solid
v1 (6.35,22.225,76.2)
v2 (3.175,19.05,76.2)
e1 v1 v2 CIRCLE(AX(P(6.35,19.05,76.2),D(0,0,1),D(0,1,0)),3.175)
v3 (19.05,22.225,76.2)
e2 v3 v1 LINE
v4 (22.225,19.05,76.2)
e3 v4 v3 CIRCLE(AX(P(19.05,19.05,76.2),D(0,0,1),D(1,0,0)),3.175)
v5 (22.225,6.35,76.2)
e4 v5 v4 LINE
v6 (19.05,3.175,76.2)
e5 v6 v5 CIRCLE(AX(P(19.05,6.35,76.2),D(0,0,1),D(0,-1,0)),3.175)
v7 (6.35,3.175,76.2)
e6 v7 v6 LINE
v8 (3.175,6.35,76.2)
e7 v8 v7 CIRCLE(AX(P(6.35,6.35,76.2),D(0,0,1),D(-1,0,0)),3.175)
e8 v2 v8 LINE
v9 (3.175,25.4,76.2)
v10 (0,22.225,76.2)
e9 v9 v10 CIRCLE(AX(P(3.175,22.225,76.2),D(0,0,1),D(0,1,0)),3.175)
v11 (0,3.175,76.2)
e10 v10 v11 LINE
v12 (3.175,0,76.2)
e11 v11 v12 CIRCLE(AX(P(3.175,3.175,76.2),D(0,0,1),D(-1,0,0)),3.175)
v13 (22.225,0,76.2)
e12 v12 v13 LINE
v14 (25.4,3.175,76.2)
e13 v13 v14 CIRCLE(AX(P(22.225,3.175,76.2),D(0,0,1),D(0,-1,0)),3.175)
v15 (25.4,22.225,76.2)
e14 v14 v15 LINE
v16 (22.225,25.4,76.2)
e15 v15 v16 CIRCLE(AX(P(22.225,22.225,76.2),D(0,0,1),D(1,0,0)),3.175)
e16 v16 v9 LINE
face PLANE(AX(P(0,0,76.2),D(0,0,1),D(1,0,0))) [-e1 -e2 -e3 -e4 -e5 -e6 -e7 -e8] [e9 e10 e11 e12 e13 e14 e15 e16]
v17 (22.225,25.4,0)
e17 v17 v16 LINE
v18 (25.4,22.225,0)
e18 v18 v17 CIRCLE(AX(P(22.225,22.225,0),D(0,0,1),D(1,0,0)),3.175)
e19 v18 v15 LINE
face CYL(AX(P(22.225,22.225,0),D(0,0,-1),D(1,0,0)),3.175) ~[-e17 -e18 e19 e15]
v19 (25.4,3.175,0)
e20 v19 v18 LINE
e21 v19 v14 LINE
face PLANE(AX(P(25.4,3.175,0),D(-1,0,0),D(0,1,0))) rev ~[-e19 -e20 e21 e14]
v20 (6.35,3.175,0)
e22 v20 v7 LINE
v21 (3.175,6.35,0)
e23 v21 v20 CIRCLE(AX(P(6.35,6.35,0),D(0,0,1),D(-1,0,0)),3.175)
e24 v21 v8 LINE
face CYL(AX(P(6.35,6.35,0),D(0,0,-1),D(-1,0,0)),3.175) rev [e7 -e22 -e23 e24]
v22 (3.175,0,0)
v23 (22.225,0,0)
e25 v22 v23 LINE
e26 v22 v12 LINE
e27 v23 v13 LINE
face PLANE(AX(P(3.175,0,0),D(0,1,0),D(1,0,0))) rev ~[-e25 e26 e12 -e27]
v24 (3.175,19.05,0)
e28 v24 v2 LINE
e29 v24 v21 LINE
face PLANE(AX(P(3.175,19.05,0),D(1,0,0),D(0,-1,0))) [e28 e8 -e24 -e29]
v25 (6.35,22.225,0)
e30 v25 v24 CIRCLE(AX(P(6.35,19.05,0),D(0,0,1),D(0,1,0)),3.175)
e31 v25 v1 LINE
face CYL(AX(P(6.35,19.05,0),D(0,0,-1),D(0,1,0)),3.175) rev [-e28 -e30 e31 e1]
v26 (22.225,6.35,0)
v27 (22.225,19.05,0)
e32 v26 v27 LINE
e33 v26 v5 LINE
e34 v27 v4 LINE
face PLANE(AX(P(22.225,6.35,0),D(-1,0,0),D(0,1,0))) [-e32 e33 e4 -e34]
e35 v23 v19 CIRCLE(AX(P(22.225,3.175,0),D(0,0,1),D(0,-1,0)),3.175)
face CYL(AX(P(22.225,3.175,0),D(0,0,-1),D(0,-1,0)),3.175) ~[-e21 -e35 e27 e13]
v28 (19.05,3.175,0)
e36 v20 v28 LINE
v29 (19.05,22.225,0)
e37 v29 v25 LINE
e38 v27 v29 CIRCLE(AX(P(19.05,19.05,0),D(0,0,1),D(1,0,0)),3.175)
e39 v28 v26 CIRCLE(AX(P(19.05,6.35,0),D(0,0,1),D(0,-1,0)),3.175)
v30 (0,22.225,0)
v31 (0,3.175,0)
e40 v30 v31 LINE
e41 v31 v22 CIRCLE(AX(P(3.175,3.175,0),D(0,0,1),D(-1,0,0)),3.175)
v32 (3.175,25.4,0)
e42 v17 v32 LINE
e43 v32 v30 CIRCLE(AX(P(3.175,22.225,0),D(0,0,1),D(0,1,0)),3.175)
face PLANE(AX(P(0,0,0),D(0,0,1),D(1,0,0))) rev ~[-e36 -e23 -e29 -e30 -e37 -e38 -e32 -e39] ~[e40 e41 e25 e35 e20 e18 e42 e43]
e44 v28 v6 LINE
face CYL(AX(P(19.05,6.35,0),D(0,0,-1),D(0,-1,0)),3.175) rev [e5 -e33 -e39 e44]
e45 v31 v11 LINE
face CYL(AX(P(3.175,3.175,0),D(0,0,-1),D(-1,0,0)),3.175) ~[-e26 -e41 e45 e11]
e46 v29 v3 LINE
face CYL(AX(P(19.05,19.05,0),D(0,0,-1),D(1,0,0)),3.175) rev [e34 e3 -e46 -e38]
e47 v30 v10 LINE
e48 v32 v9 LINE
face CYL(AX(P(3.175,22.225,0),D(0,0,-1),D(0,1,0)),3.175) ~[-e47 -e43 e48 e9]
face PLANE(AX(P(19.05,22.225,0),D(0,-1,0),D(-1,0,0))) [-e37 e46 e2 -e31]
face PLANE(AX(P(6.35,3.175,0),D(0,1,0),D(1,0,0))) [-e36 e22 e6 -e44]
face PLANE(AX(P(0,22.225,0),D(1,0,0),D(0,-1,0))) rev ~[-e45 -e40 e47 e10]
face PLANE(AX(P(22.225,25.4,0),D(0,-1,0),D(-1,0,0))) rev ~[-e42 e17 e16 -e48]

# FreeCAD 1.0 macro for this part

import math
import FreeCAD as App
import Part
import Sketcher
Q = App.Units.Quantity

doc = App.newDocument("Part")
params = doc.addObject("Spreadsheet::Sheet", "Params")
for row, (alias, value) in enumerate([
    ("sketch1_radius", "0.125 in"),
    ("pad1_length", "3 in"),
], start=1):
    params.set(f"A{row}", alias)
    params.set(f"B{row}", "=" + value)
    params.setAlias(f"B{row}", alias)

body = doc.addObject("PartDesign::Body", "Body")

# Sketch on XY plane
sketch1 = body.newObject("Sketcher::SketchObject", "Sketch")
sketch1.AttachmentSupport = (doc.getObject("XY_Plane"), [""])
sketch1.MapMode = "FlatFace"
sketch1.addGeometry(Part.ArcOfCircle(Part.Circle(App.Vector(3.2, 3.2, 0), App.Vector(0, 0, 1), 3.2), math.radians(180), math.radians(270)), False)
sketch1.addGeometry(Part.LineSegment(App.Vector(3.2, 0, 0), App.Vector(22.2, 0, 0)), False)
sketch1.addGeometry(Part.ArcOfCircle(Part.Circle(App.Vector(22.2, 3.2, 0), App.Vector(0, 0, 1), 3.2), math.radians(-90), math.radians(0)), False)
sketch1.addGeometry(Part.LineSegment(App.Vector(25.4, 3.2, 0), App.Vector(25.4, 22.2, 0)), False)
sketch1.addGeometry(Part.ArcOfCircle(Part.Circle(App.Vector(22.2, 22.2, 0), App.Vector(0, 0, 1), 3.2), math.radians(0), math.radians(90)), False)
sketch1.addGeometry(Part.LineSegment(App.Vector(22.2, 25.4, 0), App.Vector(3.2, 25.4, 0)), False)
sketch1.addGeometry(Part.ArcOfCircle(Part.Circle(App.Vector(3.2, 22.2, 0), App.Vector(0, 0, 1), 3.2), math.radians(90), math.radians(180)), False)
sketch1.addGeometry(Part.LineSegment(App.Vector(0, 22.2, 0), App.Vector(0, 3.2, 0)), False)
sketch1.addGeometry(Part.LineSegment(App.Vector(19.1, 3.2, 0), App.Vector(6.3, 3.2, 0)), False)
sketch1.addGeometry(Part.ArcOfCircle(Part.Circle(App.Vector(6.3, 6.3, 0), App.Vector(0, 0, 1), 3.2), math.radians(180), math.radians(270)), False)
sketch1.addGeometry(Part.LineSegment(App.Vector(3.2, 6.3, 0), App.Vector(3.2, 19.1, 0)), False)
sketch1.addGeometry(Part.ArcOfCircle(Part.Circle(App.Vector(6.3, 19.1, 0), App.Vector(0, 0, 1), 3.2), math.radians(90), math.radians(180)), False)
sketch1.addGeometry(Part.LineSegment(App.Vector(6.3, 22.2, 0), App.Vector(19.1, 22.2, 0)), False)
sketch1.addGeometry(Part.ArcOfCircle(Part.Circle(App.Vector(19.1, 19.1, 0), App.Vector(0, 0, 1), 3.2), math.radians(0), math.radians(90)), False)
sketch1.addGeometry(Part.LineSegment(App.Vector(22.2, 19.1, 0), App.Vector(22.2, 6.3, 0)), False)
sketch1.addGeometry(Part.ArcOfCircle(Part.Circle(App.Vector(19.1, 6.3, 0), App.Vector(0, 0, 1), 3.2), math.radians(-90), math.radians(0)), False)
sketch1.addConstraint(Sketcher.Constraint("Tangent", 0, 2, 1, 1))
sketch1.addConstraint(Sketcher.Constraint("Tangent", 1, 2, 2, 1))
sketch1.addConstraint(Sketcher.Constraint("Tangent", 2, 2, 3, 1))
sketch1.addConstraint(Sketcher.Constraint("Tangent", 3, 2, 4, 1))
sketch1.addConstraint(Sketcher.Constraint("Tangent", 4, 2, 5, 1))
sketch1.addConstraint(Sketcher.Constraint("Tangent", 5, 2, 6, 1))
sketch1.addConstraint(Sketcher.Constraint("Tangent", 6, 2, 7, 1))
sketch1.addConstraint(Sketcher.Constraint("Tangent", 7, 2, 0, 1))
sketch1.addConstraint(Sketcher.Constraint("Tangent", 8, 2, 9, 2))
sketch1.addConstraint(Sketcher.Constraint("Tangent", 9, 1, 10, 1))
sketch1.addConstraint(Sketcher.Constraint("Tangent", 10, 2, 11, 2))
sketch1.addConstraint(Sketcher.Constraint("Tangent", 11, 1, 12, 1))
sketch1.addConstraint(Sketcher.Constraint("Tangent", 12, 2, 13, 2))
sketch1.addConstraint(Sketcher.Constraint("Tangent", 13, 1, 14, 1))
sketch1.addConstraint(Sketcher.Constraint("Tangent", 14, 2, 15, 2))
sketch1.addConstraint(Sketcher.Constraint("Tangent", 15, 1, 8, 1))
sketch1.addConstraint(Sketcher.Constraint("Horizontal", 1))
sketch1.addConstraint(Sketcher.Constraint("Vertical", 3))
sketch1.addConstraint(Sketcher.Constraint("Horizontal", 5))
sketch1.addConstraint(Sketcher.Constraint("Vertical", 7))
sketch1.addConstraint(Sketcher.Constraint("Horizontal", 8))
sketch1.addConstraint(Sketcher.Constraint("Vertical", 10))
sketch1.addConstraint(Sketcher.Constraint("Horizontal", 12))
sketch1.addConstraint(Sketcher.Constraint("Vertical", 14))
sketch1.addConstraint(Sketcher.Constraint("Equal", 0, 2))
sketch1.addConstraint(Sketcher.Constraint("Equal", 2, 4))
sketch1.addConstraint(Sketcher.Constraint("Equal", 4, 6))
sketch1.addConstraint(Sketcher.Constraint("Equal", 6, 9))
sketch1.addConstraint(Sketcher.Constraint("Equal", 9, 11))
sketch1.addConstraint(Sketcher.Constraint("Equal", 11, 13))
sketch1.addConstraint(Sketcher.Constraint("Equal", 13, 15))
sketch1.addConstraint(Sketcher.Constraint("PointOnObject", 0, 2, -1))
sketch1.addConstraint(Sketcher.Constraint("PointOnObject", 6, 2, -2))
sketch1.addConstraint(Sketcher.Constraint("Horizontal", 7, 2, 8, 2))
sketch1.addConstraint(Sketcher.Constraint("Horizontal", 6, 2, 11, 1))
sketch1.addConstraint(Sketcher.Constraint("Vertical", 5, 2, 9, 1))
sketch1.addConstraint(Sketcher.Constraint("Vertical", 4, 2, 13, 1))
sketch1.addConstraint(Sketcher.Constraint("Equal", 5, 3))
sketch1.addConstraint(Sketcher.Constraint("DistanceX", -1, 1, 2, 2, Q("1 in")))
sketch1.addConstraint(Sketcher.Constraint("Radius", 0, Q("0.125 in")))
sketch1.setExpression("Constraints[39]", "Params.sketch1_radius")
pad1 = body.newObject("PartDesign::Pad", "Pad")
pad1.Profile = sketch1
pad1.setExpression("Length", "Params.pad1_length")

doc.recompute()
